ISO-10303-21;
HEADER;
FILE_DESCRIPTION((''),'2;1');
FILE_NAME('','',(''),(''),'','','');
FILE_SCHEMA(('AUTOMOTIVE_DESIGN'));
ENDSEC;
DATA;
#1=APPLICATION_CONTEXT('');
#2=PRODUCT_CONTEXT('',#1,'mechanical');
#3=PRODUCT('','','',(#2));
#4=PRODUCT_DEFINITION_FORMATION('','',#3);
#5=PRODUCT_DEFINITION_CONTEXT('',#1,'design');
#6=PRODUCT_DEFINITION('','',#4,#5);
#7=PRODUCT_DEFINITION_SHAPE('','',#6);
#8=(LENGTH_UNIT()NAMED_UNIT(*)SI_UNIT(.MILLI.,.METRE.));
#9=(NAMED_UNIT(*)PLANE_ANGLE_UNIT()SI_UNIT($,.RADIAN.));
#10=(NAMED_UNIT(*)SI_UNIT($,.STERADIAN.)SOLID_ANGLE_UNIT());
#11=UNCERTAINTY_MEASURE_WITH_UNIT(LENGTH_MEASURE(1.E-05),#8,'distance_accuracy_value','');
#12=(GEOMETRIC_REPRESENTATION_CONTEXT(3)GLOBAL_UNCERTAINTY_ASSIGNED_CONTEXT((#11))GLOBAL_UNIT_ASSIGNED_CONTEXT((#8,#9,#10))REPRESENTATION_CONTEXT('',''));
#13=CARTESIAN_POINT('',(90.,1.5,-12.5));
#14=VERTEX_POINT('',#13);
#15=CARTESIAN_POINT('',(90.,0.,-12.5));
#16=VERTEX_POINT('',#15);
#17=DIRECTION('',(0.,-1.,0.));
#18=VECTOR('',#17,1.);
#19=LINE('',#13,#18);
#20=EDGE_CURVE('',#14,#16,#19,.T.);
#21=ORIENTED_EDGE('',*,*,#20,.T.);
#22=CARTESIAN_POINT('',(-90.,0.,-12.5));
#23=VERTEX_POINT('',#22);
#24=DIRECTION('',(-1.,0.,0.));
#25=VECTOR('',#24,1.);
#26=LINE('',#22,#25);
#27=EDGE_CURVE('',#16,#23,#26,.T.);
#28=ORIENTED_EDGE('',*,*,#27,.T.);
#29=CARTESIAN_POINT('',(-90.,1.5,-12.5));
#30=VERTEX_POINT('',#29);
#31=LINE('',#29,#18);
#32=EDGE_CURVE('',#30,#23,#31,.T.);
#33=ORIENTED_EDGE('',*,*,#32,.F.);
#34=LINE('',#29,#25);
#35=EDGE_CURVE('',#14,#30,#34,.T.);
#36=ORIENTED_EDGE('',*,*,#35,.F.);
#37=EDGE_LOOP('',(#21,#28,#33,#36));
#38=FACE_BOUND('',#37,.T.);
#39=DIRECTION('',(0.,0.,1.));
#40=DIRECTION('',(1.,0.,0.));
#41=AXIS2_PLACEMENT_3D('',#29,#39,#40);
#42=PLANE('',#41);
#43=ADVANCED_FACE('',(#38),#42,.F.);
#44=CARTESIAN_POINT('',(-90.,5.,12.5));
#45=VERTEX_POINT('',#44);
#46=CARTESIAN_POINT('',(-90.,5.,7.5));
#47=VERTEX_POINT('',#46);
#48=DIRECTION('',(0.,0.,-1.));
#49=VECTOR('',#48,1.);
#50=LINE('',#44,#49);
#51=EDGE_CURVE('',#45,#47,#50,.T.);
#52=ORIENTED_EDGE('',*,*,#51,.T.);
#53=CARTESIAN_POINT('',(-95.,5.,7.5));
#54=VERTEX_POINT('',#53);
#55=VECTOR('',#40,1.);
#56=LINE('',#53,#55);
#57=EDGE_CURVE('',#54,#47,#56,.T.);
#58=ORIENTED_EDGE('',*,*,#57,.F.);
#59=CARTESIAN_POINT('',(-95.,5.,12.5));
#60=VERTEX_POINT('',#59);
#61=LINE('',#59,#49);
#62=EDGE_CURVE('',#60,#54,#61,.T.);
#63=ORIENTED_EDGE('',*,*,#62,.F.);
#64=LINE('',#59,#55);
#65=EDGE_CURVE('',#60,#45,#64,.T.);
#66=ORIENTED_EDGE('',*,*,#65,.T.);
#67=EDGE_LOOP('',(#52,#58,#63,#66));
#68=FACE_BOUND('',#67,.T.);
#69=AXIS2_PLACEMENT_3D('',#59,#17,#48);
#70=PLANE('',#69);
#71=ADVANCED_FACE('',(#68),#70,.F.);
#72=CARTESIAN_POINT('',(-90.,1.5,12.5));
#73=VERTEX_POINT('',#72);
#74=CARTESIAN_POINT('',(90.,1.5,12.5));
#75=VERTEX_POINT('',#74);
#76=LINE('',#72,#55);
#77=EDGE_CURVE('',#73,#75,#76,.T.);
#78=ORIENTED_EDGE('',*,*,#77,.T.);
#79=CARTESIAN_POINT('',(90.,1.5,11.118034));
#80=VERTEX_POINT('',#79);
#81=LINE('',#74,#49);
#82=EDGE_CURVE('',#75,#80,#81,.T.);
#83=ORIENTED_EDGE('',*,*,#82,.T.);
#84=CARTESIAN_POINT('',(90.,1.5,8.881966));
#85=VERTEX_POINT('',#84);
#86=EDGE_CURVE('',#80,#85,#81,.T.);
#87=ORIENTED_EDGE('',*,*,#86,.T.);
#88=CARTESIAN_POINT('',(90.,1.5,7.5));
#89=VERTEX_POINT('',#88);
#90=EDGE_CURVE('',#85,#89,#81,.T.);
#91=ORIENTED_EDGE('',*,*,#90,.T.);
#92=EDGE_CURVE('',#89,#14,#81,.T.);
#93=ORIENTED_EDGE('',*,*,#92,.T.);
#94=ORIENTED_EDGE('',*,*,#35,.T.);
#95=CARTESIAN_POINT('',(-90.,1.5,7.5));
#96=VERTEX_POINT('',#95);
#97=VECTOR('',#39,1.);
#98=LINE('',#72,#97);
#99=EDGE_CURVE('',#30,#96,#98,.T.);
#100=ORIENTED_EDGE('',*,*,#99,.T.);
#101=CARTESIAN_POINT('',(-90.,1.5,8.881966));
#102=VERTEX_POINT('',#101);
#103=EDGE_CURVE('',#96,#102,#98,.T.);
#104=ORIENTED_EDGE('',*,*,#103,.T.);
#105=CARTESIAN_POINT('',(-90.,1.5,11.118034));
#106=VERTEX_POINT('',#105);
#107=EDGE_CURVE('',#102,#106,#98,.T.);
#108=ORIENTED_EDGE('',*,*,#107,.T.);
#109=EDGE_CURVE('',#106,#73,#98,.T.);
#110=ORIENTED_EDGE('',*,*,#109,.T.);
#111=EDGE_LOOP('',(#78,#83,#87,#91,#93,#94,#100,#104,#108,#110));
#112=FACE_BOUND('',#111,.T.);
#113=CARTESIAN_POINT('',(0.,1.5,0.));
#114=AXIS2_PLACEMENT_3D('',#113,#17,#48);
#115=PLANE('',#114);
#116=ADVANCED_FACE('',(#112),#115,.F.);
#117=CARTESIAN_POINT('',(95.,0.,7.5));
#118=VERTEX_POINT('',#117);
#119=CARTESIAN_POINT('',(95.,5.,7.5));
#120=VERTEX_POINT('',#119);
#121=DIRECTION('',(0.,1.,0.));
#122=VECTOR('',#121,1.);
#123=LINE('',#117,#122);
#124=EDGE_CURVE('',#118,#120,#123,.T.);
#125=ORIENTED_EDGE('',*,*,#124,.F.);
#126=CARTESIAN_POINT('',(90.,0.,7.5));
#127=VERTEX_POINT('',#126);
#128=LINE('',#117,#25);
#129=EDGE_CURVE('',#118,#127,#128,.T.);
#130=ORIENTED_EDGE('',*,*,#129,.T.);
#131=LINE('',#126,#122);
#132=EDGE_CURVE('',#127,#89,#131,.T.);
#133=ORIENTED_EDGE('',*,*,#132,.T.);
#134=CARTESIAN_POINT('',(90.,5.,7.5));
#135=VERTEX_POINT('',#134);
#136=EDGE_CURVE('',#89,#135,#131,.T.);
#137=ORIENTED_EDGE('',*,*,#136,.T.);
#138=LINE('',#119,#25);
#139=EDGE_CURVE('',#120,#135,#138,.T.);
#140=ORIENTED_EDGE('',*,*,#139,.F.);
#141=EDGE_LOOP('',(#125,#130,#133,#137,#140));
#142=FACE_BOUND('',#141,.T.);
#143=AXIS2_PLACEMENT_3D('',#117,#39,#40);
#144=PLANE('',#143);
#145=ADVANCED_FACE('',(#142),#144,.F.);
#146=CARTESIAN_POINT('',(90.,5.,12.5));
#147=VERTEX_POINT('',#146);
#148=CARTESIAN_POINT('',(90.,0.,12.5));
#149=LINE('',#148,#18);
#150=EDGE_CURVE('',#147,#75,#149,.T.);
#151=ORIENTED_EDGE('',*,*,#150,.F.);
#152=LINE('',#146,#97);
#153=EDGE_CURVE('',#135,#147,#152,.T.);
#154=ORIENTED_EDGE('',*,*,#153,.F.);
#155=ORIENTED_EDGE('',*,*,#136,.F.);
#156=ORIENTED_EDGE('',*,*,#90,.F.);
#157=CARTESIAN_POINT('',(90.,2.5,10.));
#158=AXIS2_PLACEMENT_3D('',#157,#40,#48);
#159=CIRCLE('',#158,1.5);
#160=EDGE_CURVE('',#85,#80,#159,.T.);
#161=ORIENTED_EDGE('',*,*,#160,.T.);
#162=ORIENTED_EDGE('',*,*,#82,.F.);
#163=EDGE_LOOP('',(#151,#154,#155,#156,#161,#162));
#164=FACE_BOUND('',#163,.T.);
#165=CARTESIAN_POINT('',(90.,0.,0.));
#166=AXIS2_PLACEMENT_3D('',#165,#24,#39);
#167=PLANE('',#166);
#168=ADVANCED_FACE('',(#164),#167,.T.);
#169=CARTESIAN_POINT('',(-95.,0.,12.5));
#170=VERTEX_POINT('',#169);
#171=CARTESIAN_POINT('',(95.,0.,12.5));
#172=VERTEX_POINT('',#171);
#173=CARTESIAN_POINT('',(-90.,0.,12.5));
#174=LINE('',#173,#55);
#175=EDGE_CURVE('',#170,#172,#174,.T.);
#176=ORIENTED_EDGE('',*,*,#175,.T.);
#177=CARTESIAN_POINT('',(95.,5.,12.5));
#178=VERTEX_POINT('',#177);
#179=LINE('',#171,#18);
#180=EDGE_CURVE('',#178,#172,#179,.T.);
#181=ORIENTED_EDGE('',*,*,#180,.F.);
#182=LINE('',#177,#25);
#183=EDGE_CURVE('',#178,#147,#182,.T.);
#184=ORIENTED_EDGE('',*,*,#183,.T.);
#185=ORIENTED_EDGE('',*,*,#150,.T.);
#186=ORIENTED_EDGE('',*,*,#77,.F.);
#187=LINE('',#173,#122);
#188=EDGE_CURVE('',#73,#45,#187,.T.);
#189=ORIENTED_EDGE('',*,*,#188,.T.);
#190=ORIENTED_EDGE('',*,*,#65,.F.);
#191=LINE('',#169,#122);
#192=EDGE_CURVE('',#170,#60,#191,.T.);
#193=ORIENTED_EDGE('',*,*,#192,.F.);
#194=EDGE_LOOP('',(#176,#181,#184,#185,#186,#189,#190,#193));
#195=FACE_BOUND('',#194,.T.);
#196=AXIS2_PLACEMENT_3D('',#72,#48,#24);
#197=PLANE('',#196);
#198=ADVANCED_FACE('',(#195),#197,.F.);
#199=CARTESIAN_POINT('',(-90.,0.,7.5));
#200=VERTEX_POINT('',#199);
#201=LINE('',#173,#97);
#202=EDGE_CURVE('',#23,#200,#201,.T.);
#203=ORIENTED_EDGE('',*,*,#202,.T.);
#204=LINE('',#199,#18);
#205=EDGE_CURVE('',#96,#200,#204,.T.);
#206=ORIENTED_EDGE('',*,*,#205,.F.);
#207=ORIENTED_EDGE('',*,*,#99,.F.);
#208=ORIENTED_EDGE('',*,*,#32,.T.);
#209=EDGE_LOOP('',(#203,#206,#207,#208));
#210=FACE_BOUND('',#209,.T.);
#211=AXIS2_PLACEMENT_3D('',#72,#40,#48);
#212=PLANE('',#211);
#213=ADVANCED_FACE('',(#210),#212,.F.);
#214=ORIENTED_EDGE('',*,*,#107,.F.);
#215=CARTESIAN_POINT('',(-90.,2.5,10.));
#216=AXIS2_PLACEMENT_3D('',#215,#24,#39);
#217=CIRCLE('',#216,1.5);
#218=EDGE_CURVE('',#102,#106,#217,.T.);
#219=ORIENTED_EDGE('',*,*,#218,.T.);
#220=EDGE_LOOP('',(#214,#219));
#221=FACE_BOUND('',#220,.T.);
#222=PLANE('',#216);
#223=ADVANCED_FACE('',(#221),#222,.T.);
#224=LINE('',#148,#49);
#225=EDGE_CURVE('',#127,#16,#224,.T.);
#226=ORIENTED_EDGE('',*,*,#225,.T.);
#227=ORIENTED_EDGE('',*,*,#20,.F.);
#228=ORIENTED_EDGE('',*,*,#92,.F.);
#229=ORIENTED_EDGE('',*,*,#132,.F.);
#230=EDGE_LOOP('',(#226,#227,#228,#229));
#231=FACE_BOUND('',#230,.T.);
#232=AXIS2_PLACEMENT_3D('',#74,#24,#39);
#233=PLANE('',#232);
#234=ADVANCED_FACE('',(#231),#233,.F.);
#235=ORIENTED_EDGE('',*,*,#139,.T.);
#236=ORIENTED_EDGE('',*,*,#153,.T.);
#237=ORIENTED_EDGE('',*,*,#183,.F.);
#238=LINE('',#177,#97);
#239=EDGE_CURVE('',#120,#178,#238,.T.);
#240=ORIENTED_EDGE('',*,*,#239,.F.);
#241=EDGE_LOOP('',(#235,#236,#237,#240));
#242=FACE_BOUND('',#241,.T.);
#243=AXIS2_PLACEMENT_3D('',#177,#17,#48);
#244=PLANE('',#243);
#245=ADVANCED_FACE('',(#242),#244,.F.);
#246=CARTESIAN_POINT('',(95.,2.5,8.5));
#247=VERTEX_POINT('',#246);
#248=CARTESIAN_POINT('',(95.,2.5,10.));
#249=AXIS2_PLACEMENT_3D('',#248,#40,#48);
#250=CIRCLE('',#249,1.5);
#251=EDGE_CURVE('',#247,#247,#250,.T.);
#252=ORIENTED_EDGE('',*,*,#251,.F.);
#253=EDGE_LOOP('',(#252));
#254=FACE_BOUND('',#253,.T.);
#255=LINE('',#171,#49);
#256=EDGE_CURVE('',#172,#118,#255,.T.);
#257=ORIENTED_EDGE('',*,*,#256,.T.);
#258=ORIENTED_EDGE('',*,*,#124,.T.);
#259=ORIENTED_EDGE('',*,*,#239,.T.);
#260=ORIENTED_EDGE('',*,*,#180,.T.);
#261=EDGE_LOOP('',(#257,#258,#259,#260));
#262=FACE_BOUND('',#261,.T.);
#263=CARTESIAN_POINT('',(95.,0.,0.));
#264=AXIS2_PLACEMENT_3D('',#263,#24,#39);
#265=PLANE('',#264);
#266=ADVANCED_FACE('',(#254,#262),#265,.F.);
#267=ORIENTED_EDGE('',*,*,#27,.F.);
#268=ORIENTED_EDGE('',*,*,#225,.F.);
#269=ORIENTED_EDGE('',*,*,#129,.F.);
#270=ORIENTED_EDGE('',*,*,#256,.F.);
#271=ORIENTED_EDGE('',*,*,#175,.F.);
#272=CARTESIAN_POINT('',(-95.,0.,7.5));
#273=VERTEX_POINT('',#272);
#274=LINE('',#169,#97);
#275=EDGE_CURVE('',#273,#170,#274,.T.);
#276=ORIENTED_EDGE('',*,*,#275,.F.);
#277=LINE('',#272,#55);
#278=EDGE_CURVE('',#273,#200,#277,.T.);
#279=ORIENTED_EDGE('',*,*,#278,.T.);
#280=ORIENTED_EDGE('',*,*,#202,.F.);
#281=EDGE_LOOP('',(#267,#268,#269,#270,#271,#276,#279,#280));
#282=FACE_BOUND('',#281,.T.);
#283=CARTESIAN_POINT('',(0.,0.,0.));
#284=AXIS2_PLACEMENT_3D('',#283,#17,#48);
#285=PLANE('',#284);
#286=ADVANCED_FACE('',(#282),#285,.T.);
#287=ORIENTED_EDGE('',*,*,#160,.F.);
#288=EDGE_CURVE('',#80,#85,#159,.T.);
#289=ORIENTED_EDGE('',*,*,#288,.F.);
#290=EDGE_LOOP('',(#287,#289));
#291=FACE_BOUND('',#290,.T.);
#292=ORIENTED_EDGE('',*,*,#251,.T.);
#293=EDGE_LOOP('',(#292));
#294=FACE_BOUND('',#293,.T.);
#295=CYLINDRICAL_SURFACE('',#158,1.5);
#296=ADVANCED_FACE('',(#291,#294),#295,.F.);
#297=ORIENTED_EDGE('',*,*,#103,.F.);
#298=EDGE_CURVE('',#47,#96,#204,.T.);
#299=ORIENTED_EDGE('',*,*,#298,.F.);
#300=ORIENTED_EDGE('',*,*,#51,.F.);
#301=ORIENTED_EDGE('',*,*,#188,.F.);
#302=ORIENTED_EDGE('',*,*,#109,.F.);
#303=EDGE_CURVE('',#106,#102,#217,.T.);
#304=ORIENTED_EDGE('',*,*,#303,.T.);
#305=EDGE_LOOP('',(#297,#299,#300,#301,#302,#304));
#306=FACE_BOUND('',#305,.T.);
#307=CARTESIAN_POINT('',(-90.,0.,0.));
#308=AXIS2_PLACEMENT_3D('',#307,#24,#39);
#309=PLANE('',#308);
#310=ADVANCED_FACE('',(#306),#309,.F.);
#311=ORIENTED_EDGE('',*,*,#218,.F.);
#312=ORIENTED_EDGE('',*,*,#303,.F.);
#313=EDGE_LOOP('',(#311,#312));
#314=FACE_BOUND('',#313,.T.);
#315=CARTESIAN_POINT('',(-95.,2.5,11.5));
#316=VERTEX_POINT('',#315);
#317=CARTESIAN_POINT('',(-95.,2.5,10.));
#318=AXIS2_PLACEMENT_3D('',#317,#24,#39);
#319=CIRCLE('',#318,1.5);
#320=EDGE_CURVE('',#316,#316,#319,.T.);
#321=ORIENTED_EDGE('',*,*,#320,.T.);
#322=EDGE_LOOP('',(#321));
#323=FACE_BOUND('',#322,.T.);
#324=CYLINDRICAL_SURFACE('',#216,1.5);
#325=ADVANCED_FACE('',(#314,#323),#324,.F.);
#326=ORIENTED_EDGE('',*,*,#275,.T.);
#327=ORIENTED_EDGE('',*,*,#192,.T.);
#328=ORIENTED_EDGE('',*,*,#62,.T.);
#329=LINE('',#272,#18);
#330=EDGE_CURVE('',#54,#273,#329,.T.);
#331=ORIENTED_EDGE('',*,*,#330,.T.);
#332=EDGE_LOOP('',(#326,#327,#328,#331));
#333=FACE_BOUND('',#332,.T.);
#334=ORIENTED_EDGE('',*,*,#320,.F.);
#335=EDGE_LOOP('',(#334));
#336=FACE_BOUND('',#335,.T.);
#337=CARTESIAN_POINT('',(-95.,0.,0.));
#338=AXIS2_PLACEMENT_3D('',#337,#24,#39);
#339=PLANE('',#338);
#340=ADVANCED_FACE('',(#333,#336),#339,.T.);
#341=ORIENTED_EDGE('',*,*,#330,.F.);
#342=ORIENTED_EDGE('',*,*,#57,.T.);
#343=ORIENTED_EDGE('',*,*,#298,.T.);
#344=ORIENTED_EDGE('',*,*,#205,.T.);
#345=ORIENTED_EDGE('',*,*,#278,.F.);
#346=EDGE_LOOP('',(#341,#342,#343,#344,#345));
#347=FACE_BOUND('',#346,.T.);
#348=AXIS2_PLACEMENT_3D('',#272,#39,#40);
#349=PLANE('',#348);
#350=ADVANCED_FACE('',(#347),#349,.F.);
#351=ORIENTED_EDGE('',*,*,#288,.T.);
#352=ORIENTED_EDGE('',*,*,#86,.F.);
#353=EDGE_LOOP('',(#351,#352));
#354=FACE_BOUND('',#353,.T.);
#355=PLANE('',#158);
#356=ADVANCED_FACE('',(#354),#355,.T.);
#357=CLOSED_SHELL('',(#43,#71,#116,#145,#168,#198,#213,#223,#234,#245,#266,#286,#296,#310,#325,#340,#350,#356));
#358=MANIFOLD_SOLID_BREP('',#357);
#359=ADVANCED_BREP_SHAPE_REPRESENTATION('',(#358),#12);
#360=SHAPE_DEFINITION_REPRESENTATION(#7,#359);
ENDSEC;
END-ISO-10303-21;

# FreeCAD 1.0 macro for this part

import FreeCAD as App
import Part
import Sketcher
from FreeCAD import Vector
Q = App.Units.Quantity

doc = App.newDocument("Part")
body = doc.addObject("PartDesign::Body", "Body")

# Sketch on XZ plane
sketch1 = body.newObject("Sketcher::SketchObject", "Sketch")
sketch1.AttachmentSupport = (doc.getObject("XZ_Plane"), [""])
sketch1.MapMode = "FlatFace"
sketch1.addGeometry([
    Part.LineSegment(Vector(-90, -12.5, 0), Vector(-90, 12.5, 0)),
    Part.LineSegment(Vector(-90, 12.5, 0), Vector(90, 12.5, 0)),
    Part.LineSegment(Vector(90, 12.5, 0), Vector(90, -12.5, 0)),
    Part.LineSegment(Vector(90, -12.5, 0), Vector(-90, -12.5, 0)),
], False)
sketch1.addConstraint([
    Sketcher.Constraint("Coincident", 0, 2, 1, 1),
    Sketcher.Constraint("Coincident", 1, 2, 2, 1),
    Sketcher.Constraint("Coincident", 2, 2, 3, 1),
    Sketcher.Constraint("Coincident", 3, 2, 0, 1),
    Sketcher.Constraint("Vertical", 0),
    Sketcher.Constraint("Horizontal", 1),
    Sketcher.Constraint("Vertical", 2),
    Sketcher.Constraint("Horizontal", 3),
    Sketcher.Constraint("Symmetric", 0, 2, 2, 2, -1, 1),
    Sketcher.Constraint("DistanceX", 1, 1, 1, 2, Q("180 mm")),
    Sketcher.Constraint("DistanceY", 0, 1, 0, 2, Q("25 mm")),
])
pad1 = body.newObject("PartDesign::Pad", "Pad")
pad1.Profile = sketch1
pad1.Length = 1.5
pad1.Reversed = True

# Sketch on YZ plane
sketch2 = body.newObject("Sketcher::SketchObject", "Sketch001")
sketch2.AttachmentSupport = (doc.getObject("YZ_Plane"), [""])
sketch2.MapMode = "FlatFace"
sketch2.AttachmentOffset = App.Placement(Vector(0, 0, 90), App.Rotation())
sketch2.addGeometry([
    Part.LineSegment(Vector(5, 12.5, 0), Vector(0, 12.5, 0)),
    Part.LineSegment(Vector(0, 12.5, 0), Vector(0, 7.5, 0)),
    Part.LineSegment(Vector(0, 7.5, 0), Vector(5, 7.5, 0)),
    Part.LineSegment(Vector(5, 7.5, 0), Vector(5, 12.5, 0)),
], False)
sketch2.addConstraint([
    Sketcher.Constraint("Coincident", 0, 2, 1, 1),
    Sketcher.Constraint("Coincident", 1, 2, 2, 1),
    Sketcher.Constraint("Coincident", 2, 2, 3, 1),
    Sketcher.Constraint("Coincident", 3, 2, 0, 1),
    Sketcher.Constraint("Horizontal", 0),
    Sketcher.Constraint("Vertical", 1),
    Sketcher.Constraint("Horizontal", 2),
    Sketcher.Constraint("Vertical", 3),
    Sketcher.Constraint("PointOnObject", 0, 2, -2),
    Sketcher.Constraint("Equal", 2, 1),
    Sketcher.Constraint("DistanceX", 0, 2, 0, 1, Q("5 mm")),
    Sketcher.Constraint("DistanceY", -1, 1, 0, 2, Q("12.5 mm")),
])
pad2 = body.newObject("PartDesign::Pad", "Pad001")
pad2.Profile = sketch2
pad2.Length = 5

# Sketch on YZ plane
sketch3 = body.newObject("Sketcher::SketchObject", "Sketch002")
sketch3.AttachmentSupport = (doc.getObject("YZ_Plane"), [""])
sketch3.MapMode = "FlatFace"
sketch3.AttachmentOffset = App.Placement(Vector(0, 0, 95), App.Rotation())
sketch3.addGeometry(Part.Circle(Vector(2.5, 10, 0), Vector(0, 0, 1), 1.5), False)
sketch3.addConstraint([
    Sketcher.Constraint("Diameter", 0, Q("3 mm")),
    Sketcher.Constraint("DistanceY", -1, 1, 0, 3, Q("10 mm")),
    Sketcher.Constraint("DistanceX", -1, 1, 0, 3, Q("2.5 mm")),
])
pocket1 = body.newObject("PartDesign::Pocket", "Pocket")
pocket1.Profile = sketch3
pocket1.Length = 5

# Sketch on YZ plane
sketch4 = body.newObject("Sketcher::SketchObject", "Sketch003")
sketch4.AttachmentSupport = (doc.getObject("YZ_Plane"), [""])
sketch4.MapMode = "FlatFace"
sketch4.AttachmentOffset = App.Placement(Vector(0, 0, -90), App.Rotation())
sketch4.addGeometry([
    Part.LineSegment(Vector(5, 7.5, 0), Vector(0, 7.5, 0)),
    Part.LineSegment(Vector(0, 7.5, 0), Vector(0, 12.5, 0)),
    Part.LineSegment(Vector(0, 12.5, 0), Vector(5, 12.5, 0)),
    Part.LineSegment(Vector(5, 12.5, 0), Vector(5, 7.5, 0)),
], False)
sketch4.addConstraint([
    Sketcher.Constraint("Coincident", 0, 2, 1, 1),
    Sketcher.Constraint("Coincident", 1, 2, 2, 1),
    Sketcher.Constraint("Coincident", 2, 2, 3, 1),
    Sketcher.Constraint("Coincident", 3, 2, 0, 1),
    Sketcher.Constraint("Horizontal", 0),
    Sketcher.Constraint("Vertical", 1),
    Sketcher.Constraint("Horizontal", 2),
    Sketcher.Constraint("Vertical", 3),
    Sketcher.Constraint("PointOnObject", 0, 2, -2),
    Sketcher.Constraint("Equal", 2, 1),
    Sketcher.Constraint("DistanceX", 0, 2, 0, 1, Q("5 mm")),
    Sketcher.Constraint("DistanceY", -1, 1, 0, 2, Q("7.5 mm")),
])
pad3 = body.newObject("PartDesign::Pad", "Pad002")
pad3.Profile = sketch4
pad3.Length = 5
pad3.Reversed = True

# Sketch on YZ plane
sketch5 = body.newObject("Sketcher::SketchObject", "Sketch004")
sketch5.AttachmentSupport = (doc.getObject("YZ_Plane"), [""])
sketch5.MapMode = "FlatFace"
sketch5.AttachmentOffset = App.Placement(Vector(0, 0, -90), App.Rotation())
sketch5.addGeometry(Part.Circle(Vector(2.5, 10, 0), Vector(0, 0, 1), 1.5), False)
sketch5.addConstraint([
    Sketcher.Constraint("Diameter", 0, Q("3 mm")),
    Sketcher.Constraint("DistanceY", -1, 1, 0, 3, Q("10 mm")),
    Sketcher.Constraint("DistanceX", -1, 1, 0, 3, Q("2.5 mm")),
])
pocket2 = body.newObject("PartDesign::Pocket", "Pocket001")
pocket2.Profile = sketch5
pocket2.Length = 5

doc.recompute()
